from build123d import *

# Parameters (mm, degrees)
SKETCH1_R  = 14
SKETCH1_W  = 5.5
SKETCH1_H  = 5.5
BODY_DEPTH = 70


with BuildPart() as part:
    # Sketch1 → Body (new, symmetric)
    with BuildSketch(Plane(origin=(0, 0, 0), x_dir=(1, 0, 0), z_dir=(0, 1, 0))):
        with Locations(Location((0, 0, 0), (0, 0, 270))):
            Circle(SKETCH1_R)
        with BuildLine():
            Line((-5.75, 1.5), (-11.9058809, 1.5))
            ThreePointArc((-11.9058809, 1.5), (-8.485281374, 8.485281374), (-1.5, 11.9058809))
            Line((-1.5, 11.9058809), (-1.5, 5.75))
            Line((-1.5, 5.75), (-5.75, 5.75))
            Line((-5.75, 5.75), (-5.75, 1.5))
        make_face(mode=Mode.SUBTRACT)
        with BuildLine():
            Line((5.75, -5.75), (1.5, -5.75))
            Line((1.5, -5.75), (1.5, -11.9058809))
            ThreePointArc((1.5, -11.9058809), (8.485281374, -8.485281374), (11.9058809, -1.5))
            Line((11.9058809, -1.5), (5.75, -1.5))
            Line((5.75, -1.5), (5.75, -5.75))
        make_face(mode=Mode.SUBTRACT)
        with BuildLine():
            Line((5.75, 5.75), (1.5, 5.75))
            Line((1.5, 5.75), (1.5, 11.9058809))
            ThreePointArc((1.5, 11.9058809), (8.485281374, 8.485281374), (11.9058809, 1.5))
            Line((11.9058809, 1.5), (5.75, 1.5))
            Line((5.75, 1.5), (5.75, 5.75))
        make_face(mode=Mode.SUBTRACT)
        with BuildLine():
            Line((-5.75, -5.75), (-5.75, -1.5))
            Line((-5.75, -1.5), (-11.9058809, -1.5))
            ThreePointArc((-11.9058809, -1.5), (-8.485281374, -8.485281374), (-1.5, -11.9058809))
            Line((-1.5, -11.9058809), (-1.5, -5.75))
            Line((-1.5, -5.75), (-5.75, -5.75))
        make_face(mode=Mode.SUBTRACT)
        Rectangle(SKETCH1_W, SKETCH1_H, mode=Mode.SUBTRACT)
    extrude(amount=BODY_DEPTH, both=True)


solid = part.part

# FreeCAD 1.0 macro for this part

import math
import FreeCAD as App
import Part
import Sketcher


def add_polygon(sketch, points):
    """Adds a closed chain of lines whose ends are joined by coincident constraints."""
    first, n = sketch.GeometryCount, len(points)
    for a, b in zip(points, points[1:] + points[:1]):
        sketch.addGeometry(Part.LineSegment(App.Vector(*a, 0), App.Vector(*b, 0)), False)
    for i in range(n):
        sketch.addConstraint(Sketcher.Constraint("Coincident", first + i, 2, first + (i + 1) % n, 1))

doc = App.newDocument("Part")
body = doc.addObject("PartDesign::Body", "Body")

# Sketch on XZ plane
sketch1 = doc.addObject("Sketcher::SketchObject", "Sketch")
body.addObject(sketch1)
sketch1.AttachmentSupport = (doc.XZ_Plane, [""])
sketch1.MapMode = "FlatFace"
sketch1.addGeometry(Part.Circle(App.Vector(0, 0, 0), App.Vector(0, 0, 1), 14), False)  # 0
sketch1.addGeometry(Part.LineSegment(App.Vector(-5.75, -5.75, 0), App.Vector(-5.75, -1.5, 0)), False)  # 1
sketch1.addGeometry(Part.LineSegment(App.Vector(-5.75, -1.5, 0), App.Vector(-11.905881, -1.5, 0)), False)  # 2
sketch1.addGeometry(Part.ArcOfCircle(Part.Circle(App.Vector(0, 0, 0), App.Vector(0, 0, 1), 12), math.radians(-172.819244), math.radians(-97.180756)), False)  # 3
sketch1.addGeometry(Part.LineSegment(App.Vector(-1.5, -11.905881, 0), App.Vector(-1.5, -5.75, 0)), False)  # 4
sketch1.addGeometry(Part.LineSegment(App.Vector(-1.5, -5.75, 0), App.Vector(-5.75, -5.75, 0)), False)  # 5
sketch1.addGeometry(Part.LineSegment(App.Vector(-5.75, 1.5, 0), App.Vector(-5.75, 5.75, 0)), False)  # 6
sketch1.addGeometry(Part.LineSegment(App.Vector(-5.75, 5.75, 0), App.Vector(-1.5, 5.75, 0)), False)  # 7
sketch1.addGeometry(Part.LineSegment(App.Vector(-1.5, 5.75, 0), App.Vector(-1.5, 11.905881, 0)), False)  # 8
sketch1.addGeometry(Part.ArcOfCircle(Part.Circle(App.Vector(0, 0, 0), App.Vector(0, 0, 1), 12), math.radians(97.180756), math.radians(172.819244)), False)  # 9
sketch1.addGeometry(Part.LineSegment(App.Vector(-11.905881, 1.5, 0), App.Vector(-5.75, 1.5, 0)), False)  # 10
sketch1.addGeometry(Part.LineSegment(App.Vector(5.75, -1.5, 0), App.Vector(5.75, -5.75, 0)), False)  # 11
sketch1.addGeometry(Part.LineSegment(App.Vector(5.75, -5.75, 0), App.Vector(1.5, -5.75, 0)), False)  # 12
sketch1.addGeometry(Part.LineSegment(App.Vector(1.5, -5.75, 0), App.Vector(1.5, -11.905881, 0)), False)  # 13
sketch1.addGeometry(Part.ArcOfCircle(Part.Circle(App.Vector(0, 0, 0), App.Vector(0, 0, 1), 12), math.radians(-82.819244), math.radians(-7.180756)), False)  # 14
sketch1.addGeometry(Part.LineSegment(App.Vector(11.905881, -1.5, 0), App.Vector(5.75, -1.5, 0)), False)  # 15
add_polygon(sketch1, [(2.75, 2.75), (-2.75, 2.75), (-2.75, -2.75), (2.75, -2.75)])  # lines 16-19
sketch1.addGeometry(Part.LineSegment(App.Vector(1.5, 5.75, 0), App.Vector(5.75, 5.75, 0)), False)  # 20
sketch1.addGeometry(Part.LineSegment(App.Vector(5.75, 5.75, 0), App.Vector(5.75, 1.5, 0)), False)  # 21
sketch1.addGeometry(Part.LineSegment(App.Vector(5.75, 1.5, 0), App.Vector(11.905881, 1.5, 0)), False)  # 22
sketch1.addGeometry(Part.ArcOfCircle(Part.Circle(App.Vector(0, 0, 0), App.Vector(0, 0, 1), 12), math.radians(7.180756), math.radians(82.819244)), False)  # 23
sketch1.addGeometry(Part.LineSegment(App.Vector(1.5, 11.905881, 0), App.Vector(1.5, 5.75, 0)), False)  # 24
sketch1.addConstraint(Sketcher.Constraint("Coincident", 1, 2, 2, 1))
sketch1.addConstraint(Sketcher.Constraint("Coincident", 2, 2, 3, 1))
sketch1.addConstraint(Sketcher.Constraint("Coincident", 3, 2, 4, 1))
sketch1.addConstraint(Sketcher.Constraint("Coincident", 4, 2, 5, 1))
sketch1.addConstraint(Sketcher.Constraint("Coincident", 5, 2, 1, 1))
sketch1.addConstraint(Sketcher.Constraint("Coincident", 6, 2, 7, 1))
sketch1.addConstraint(Sketcher.Constraint("Coincident", 7, 2, 8, 1))
sketch1.addConstraint(Sketcher.Constraint("Coincident", 8, 2, 9, 1))
sketch1.addConstraint(Sketcher.Constraint("Coincident", 9, 2, 10, 1))
sketch1.addConstraint(Sketcher.Constraint("Coincident", 10, 2, 6, 1))
sketch1.addConstraint(Sketcher.Constraint("Coincident", 11, 2, 12, 1))
sketch1.addConstraint(Sketcher.Constraint("Coincident", 12, 2, 13, 1))
sketch1.addConstraint(Sketcher.Constraint("Coincident", 13, 2, 14, 1))
sketch1.addConstraint(Sketcher.Constraint("Coincident", 14, 2, 15, 1))
sketch1.addConstraint(Sketcher.Constraint("Coincident", 15, 2, 11, 1))
sketch1.addConstraint(Sketcher.Constraint("Coincident", 20, 2, 21, 1))
sketch1.addConstraint(Sketcher.Constraint("Coincident", 21, 2, 22, 1))
sketch1.addConstraint(Sketcher.Constraint("Coincident", 22, 2, 23, 1))
sketch1.addConstraint(Sketcher.Constraint("Coincident", 23, 2, 24, 1))
sketch1.addConstraint(Sketcher.Constraint("Coincident", 24, 2, 20, 1))
sketch1.addConstraint(Sketcher.Constraint("Vertical", 1))
sketch1.addConstraint(Sketcher.Constraint("Horizontal", 2))
sketch1.addConstraint(Sketcher.Constraint("Vertical", 4))
sketch1.addConstraint(Sketcher.Constraint("Horizontal", 5))
sketch1.addConstraint(Sketcher.Constraint("Vertical", 6))
sketch1.addConstraint(Sketcher.Constraint("Horizontal", 7))
sketch1.addConstraint(Sketcher.Constraint("Vertical", 8))
sketch1.addConstraint(Sketcher.Constraint("Horizontal", 10))
sketch1.addConstraint(Sketcher.Constraint("Vertical", 11))
sketch1.addConstraint(Sketcher.Constraint("Horizontal", 12))
sketch1.addConstraint(Sketcher.Constraint("Vertical", 13))
sketch1.addConstraint(Sketcher.Constraint("Horizontal", 15))
sketch1.addConstraint(Sketcher.Constraint("Horizontal", 16))
sketch1.addConstraint(Sketcher.Constraint("Vertical", 17))
sketch1.addConstraint(Sketcher.Constraint("Horizontal", 18))
sketch1.addConstraint(Sketcher.Constraint("Vertical", 19))
sketch1.addConstraint(Sketcher.Constraint("Horizontal", 20))
sketch1.addConstraint(Sketcher.Constraint("Vertical", 21))
sketch1.addConstraint(Sketcher.Constraint("Horizontal", 22))
sketch1.addConstraint(Sketcher.Constraint("Vertical", 24))
sketch1.addConstraint(Sketcher.Constraint("Coincident", 0, 3, -1, 1))
sketch1.addConstraint(Sketcher.Constraint("Coincident", 3, 3, -1, 1))
sketch1.addConstraint(Sketcher.Constraint("Coincident", 9, 3, -1, 1))
sketch1.addConstraint(Sketcher.Constraint("Coincident", 14, 3, -1, 1))
sketch1.addConstraint(Sketcher.Constraint("Coincident", 23, 3, -1, 1))
sketch1.addConstraint(Sketcher.Constraint("Equal", 3, 9))
sketch1.addConstraint(Sketcher.Constraint("Equal", 9, 14))
sketch1.addConstraint(Sketcher.Constraint("Equal", 14, 23))
sketch1.addConstraint(Sketcher.Constraint("Symmetric", 6, 2, 11, 2, -1, 1))
sketch1.addConstraint(Sketcher.Constraint("Symmetric", 16, 2, 18, 2, -1, 1))
sketch1.addConstraint(Sketcher.Constraint("Symmetric", 5, 2, 20, 2, -1, 1))
sketch1.addConstraint(Sketcher.Constraint("Symmetric", 5, 2, 11, 2, -2))
sketch1.addConstraint(Sketcher.Constraint("Horizontal", 3, 2, 13, 2))
sketch1.addConstraint(Sketcher.Constraint("Horizontal", 2, 2, 14, 2))
sketch1.addConstraint(Sketcher.Constraint("Horizontal", 10, 2, 21, 2))
sketch1.addConstraint(Sketcher.Constraint("Horizontal", 8, 2, 23, 2))
sketch1.addConstraint(Sketcher.Constraint("Vertical", 4, 2, 7, 2))
sketch1.addConstraint(Sketcher.Constraint("Vertical", 2, 2, 9, 2))
sketch1.addConstraint(Sketcher.Constraint("Equal", 20, 1))
sketch1.addConstraint(Sketcher.Constraint("Equal", 22, 4))
sketch1.addConstraint(Sketcher.Constraint("Equal", 18, 17))
sketch1.addConstraint(Sketcher.Constraint("Diameter", 0, 28.0))
sketch1.addConstraint(Sketcher.Constraint("Radius", 3, 12.0))
sketch1.addConstraint(Sketcher.Constraint("DistanceX", 16, 2, 16, 1, 5.5))
sketch1.addConstraint(Sketcher.Constraint("DistanceY", 2, 2, 9, 2, 3.0))
sketch1.addConstraint(Sketcher.Constraint("DistanceY", 16, 2, 7, 2, 3.0))
pad1 = doc.addObject("PartDesign::Pad", "Pad")
body.addObject(pad1)
pad1.Profile = sketch1
pad1.Length = 140
pad1.Midplane = True

doc.recompute()
